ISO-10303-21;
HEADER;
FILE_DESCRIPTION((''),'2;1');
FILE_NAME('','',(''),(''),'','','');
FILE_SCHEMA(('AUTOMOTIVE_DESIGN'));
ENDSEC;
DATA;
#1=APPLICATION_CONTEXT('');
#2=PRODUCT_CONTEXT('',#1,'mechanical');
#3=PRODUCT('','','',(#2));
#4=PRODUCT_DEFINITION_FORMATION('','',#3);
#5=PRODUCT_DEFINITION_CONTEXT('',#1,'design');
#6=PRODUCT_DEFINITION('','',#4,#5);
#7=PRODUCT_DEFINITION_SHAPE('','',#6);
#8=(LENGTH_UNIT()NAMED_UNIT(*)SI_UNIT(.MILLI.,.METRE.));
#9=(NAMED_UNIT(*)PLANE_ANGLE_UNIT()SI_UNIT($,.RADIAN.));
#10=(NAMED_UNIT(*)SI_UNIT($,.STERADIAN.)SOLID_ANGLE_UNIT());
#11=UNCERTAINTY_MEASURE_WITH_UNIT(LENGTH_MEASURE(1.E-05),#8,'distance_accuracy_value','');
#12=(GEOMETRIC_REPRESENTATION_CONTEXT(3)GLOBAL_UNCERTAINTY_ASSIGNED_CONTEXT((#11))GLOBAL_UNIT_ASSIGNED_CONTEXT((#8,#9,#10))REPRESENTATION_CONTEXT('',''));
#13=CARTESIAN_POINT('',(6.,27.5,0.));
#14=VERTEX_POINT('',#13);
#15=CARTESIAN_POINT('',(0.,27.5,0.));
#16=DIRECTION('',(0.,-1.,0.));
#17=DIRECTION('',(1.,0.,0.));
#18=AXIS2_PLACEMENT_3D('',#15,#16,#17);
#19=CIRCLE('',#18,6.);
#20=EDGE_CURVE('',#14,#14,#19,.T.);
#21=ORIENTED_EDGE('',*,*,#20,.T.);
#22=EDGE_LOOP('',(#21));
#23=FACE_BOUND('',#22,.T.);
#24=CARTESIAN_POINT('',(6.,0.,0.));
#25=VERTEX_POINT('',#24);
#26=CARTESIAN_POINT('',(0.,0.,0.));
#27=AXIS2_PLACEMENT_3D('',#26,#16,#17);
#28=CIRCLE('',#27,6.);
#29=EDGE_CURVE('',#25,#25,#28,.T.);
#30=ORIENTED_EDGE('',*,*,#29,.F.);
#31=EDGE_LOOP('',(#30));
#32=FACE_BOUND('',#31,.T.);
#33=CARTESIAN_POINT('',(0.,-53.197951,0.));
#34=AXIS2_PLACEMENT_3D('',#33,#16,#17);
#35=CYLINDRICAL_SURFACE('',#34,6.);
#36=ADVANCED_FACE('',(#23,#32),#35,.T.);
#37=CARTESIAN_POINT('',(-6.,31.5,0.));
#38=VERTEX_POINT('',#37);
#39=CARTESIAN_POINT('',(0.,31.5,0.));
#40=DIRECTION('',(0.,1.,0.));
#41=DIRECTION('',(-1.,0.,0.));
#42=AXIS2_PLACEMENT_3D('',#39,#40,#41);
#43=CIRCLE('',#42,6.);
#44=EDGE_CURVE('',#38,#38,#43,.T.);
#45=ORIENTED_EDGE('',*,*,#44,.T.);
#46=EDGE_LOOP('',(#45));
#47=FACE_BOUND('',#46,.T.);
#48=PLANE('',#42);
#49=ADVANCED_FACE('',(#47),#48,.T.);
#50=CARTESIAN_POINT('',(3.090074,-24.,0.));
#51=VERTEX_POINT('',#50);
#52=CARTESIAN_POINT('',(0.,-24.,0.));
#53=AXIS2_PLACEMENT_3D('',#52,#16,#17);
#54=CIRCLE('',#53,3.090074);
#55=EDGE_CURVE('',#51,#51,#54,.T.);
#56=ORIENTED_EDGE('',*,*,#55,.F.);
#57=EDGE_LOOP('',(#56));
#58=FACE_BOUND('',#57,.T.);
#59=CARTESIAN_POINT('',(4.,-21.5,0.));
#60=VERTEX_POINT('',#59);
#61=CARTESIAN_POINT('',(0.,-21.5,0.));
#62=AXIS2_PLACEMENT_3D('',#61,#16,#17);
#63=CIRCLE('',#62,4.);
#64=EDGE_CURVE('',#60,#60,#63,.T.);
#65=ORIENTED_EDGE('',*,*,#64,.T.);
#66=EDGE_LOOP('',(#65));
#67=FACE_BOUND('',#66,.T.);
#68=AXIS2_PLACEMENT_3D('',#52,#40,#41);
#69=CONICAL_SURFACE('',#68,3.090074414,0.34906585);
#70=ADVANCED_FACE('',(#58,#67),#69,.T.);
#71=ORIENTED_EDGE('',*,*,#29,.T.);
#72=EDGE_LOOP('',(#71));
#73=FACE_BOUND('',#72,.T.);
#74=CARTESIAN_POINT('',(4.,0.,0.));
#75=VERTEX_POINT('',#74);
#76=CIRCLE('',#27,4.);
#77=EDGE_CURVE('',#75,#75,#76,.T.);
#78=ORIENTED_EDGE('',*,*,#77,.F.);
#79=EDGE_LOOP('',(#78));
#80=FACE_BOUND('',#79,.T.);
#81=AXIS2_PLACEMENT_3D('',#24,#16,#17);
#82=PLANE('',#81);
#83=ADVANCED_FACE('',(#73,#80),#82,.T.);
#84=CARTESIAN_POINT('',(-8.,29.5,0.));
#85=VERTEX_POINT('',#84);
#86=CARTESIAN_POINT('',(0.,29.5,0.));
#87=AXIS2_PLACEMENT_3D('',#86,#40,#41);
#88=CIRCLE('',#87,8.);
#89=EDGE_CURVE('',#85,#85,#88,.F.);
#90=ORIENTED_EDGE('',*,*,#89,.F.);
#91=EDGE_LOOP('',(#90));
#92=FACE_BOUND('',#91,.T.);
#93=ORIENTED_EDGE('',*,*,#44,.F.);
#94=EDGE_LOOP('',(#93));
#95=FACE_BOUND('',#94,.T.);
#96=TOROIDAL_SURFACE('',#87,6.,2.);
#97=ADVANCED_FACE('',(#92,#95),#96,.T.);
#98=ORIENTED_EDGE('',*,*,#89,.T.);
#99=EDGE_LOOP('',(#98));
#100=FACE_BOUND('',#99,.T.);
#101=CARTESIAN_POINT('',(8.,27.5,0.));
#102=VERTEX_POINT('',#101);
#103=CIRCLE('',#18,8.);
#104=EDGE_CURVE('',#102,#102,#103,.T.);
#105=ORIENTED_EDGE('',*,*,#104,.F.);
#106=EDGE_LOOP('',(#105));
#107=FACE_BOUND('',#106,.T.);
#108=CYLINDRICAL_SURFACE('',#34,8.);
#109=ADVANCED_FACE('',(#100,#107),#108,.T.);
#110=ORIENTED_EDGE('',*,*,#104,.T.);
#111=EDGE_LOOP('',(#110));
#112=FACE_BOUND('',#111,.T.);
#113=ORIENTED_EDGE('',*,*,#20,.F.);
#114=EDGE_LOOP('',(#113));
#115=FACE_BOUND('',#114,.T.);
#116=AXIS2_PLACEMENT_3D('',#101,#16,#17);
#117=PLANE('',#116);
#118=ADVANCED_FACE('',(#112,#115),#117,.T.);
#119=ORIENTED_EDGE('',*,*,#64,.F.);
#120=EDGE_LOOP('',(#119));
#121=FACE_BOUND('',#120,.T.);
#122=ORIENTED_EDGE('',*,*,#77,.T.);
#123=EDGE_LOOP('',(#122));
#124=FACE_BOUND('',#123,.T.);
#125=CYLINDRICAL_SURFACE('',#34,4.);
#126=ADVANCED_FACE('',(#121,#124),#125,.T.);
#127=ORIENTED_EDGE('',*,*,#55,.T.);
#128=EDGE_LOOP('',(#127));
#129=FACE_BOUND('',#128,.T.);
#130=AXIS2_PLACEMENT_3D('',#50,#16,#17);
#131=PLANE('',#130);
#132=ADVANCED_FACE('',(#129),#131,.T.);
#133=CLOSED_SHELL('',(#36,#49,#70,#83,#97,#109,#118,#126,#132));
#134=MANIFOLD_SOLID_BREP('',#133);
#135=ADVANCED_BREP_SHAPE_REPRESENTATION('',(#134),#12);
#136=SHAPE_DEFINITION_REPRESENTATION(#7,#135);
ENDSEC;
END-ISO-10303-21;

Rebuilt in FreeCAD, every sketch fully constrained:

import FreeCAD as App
import Part
import Sketcher
Q = App.Units.Quantity


def edges_at(feature, points):
    """Names of the edges that pass closest to the given points."""
    edges = feature.Shape.Edges
    near = lambda p: min(range(len(edges)), key=lambda i: edges[i].distToShape(Part.Vertex(*p))[0])
    return sorted({f"Edge{near(p) + 1}" for p in points})

doc = App.newDocument("Part")
body = doc.addObject("PartDesign::Body", "Body")

# Sketch on XY plane
sketch1 = body.newObject("Sketcher::SketchObject", "Sketch")
sketch1.AttachmentSupport = (doc.getObject("XY_Plane"), [""])
sketch1.MapMode = "FlatFace"
sketch1.addGeometry(Part.LineSegment(App.Vector(8, 31.5, 0), App.Vector(0, 31.5, 0)), False)
sketch1.addGeometry(Part.LineSegment(App.Vector(0, 31.5, 0), App.Vector(0, -24, 0)), False)
sketch1.addGeometry(Part.LineSegment(App.Vector(0, -24, 0), App.Vector(3.1, -24, 0)), False)
sketch1.addGeometry(Part.LineSegment(App.Vector(3.1, -24, 0), App.Vector(4, -21.5, 0)), False)
sketch1.addGeometry(Part.LineSegment(App.Vector(4, -21.5, 0), App.Vector(4, 0, 0)), False)
sketch1.addGeometry(Part.LineSegment(App.Vector(4, 0, 0), App.Vector(6, 0, 0)), False)
sketch1.addGeometry(Part.LineSegment(App.Vector(6, 0, 0), App.Vector(6, 27.5, 0)), False)
sketch1.addGeometry(Part.LineSegment(App.Vector(6, 27.5, 0), App.Vector(8, 27.5, 0)), False)
sketch1.addGeometry(Part.LineSegment(App.Vector(8, 27.5, 0), App.Vector(8, 31.5, 0)), False)
sketch1.addConstraint(Sketcher.Constraint("Coincident", 0, 2, 1, 1))
sketch1.addConstraint(Sketcher.Constraint("Coincident", 1, 2, 2, 1))
sketch1.addConstraint(Sketcher.Constraint("Coincident", 2, 2, 3, 1))
sketch1.addConstraint(Sketcher.Constraint("Coincident", 3, 2, 4, 1))
sketch1.addConstraint(Sketcher.Constraint("Coincident", 4, 2, 5, 1))
sketch1.addConstraint(Sketcher.Constraint("Coincident", 5, 2, 6, 1))
sketch1.addConstraint(Sketcher.Constraint("Coincident", 6, 2, 7, 1))
sketch1.addConstraint(Sketcher.Constraint("Coincident", 7, 2, 8, 1))
sketch1.addConstraint(Sketcher.Constraint("Coincident", 8, 2, 0, 1))
sketch1.addConstraint(Sketcher.Constraint("Horizontal", 0))
sketch1.addConstraint(Sketcher.Constraint("Vertical", 1))
sketch1.addConstraint(Sketcher.Constraint("Horizontal", 2))
sketch1.addConstraint(Sketcher.Constraint("Vertical", 4))
sketch1.addConstraint(Sketcher.Constraint("Horizontal", 5))
sketch1.addConstraint(Sketcher.Constraint("Vertical", 6))
sketch1.addConstraint(Sketcher.Constraint("Horizontal", 7))
sketch1.addConstraint(Sketcher.Constraint("Vertical", 8))
sketch1.addConstraint(Sketcher.Constraint("PointOnObject", 0, 2, -2))
sketch1.addConstraint(Sketcher.Constraint("PointOnObject", 4, 2, -1))
sketch1.addConstraint(Sketcher.Constraint("Equal", 5, 7))
sketch1.addConstraint(Sketcher.Constraint("DistanceX", 0, 2, 0, 1, Q("8 mm")))
sketch1.addConstraint(Sketcher.Constraint("DistanceX", 5, 1, 5, 2, Q("2 mm")))
sketch1.addConstraint(Sketcher.Constraint("DistanceY", 8, 1, 8, 2, Q("4 mm")))
sketch1.addConstraint(Sketcher.Constraint("Angle", 3, Q("70 deg")))
sketch1.addConstraint(Sketcher.Constraint("DistanceY", 1, 2, 1, 1, Q("55.5 mm")))
sketch1.addConstraint(Sketcher.Constraint("DistanceY", 4, 1, 4, 2, Q("21.5 mm")))
sketch1.addConstraint(Sketcher.Constraint("DistanceY", 6, 1, 6, 2, Q("27.5 mm")))
revolution = body.newObject("PartDesign::Revolution", "Revolution")
revolution.Profile = sketch1
revolution.ReferenceAxis = (sketch1, ["V_Axis"])
revolution.Angle = 360
doc.recompute()

fillet = body.newObject("PartDesign::Fillet", "Fillet")
fillet.Base = (revolution, edges_at(revolution, [(-8, 31.5, 0)]))
fillet.Radius = 2

doc.recompute()
